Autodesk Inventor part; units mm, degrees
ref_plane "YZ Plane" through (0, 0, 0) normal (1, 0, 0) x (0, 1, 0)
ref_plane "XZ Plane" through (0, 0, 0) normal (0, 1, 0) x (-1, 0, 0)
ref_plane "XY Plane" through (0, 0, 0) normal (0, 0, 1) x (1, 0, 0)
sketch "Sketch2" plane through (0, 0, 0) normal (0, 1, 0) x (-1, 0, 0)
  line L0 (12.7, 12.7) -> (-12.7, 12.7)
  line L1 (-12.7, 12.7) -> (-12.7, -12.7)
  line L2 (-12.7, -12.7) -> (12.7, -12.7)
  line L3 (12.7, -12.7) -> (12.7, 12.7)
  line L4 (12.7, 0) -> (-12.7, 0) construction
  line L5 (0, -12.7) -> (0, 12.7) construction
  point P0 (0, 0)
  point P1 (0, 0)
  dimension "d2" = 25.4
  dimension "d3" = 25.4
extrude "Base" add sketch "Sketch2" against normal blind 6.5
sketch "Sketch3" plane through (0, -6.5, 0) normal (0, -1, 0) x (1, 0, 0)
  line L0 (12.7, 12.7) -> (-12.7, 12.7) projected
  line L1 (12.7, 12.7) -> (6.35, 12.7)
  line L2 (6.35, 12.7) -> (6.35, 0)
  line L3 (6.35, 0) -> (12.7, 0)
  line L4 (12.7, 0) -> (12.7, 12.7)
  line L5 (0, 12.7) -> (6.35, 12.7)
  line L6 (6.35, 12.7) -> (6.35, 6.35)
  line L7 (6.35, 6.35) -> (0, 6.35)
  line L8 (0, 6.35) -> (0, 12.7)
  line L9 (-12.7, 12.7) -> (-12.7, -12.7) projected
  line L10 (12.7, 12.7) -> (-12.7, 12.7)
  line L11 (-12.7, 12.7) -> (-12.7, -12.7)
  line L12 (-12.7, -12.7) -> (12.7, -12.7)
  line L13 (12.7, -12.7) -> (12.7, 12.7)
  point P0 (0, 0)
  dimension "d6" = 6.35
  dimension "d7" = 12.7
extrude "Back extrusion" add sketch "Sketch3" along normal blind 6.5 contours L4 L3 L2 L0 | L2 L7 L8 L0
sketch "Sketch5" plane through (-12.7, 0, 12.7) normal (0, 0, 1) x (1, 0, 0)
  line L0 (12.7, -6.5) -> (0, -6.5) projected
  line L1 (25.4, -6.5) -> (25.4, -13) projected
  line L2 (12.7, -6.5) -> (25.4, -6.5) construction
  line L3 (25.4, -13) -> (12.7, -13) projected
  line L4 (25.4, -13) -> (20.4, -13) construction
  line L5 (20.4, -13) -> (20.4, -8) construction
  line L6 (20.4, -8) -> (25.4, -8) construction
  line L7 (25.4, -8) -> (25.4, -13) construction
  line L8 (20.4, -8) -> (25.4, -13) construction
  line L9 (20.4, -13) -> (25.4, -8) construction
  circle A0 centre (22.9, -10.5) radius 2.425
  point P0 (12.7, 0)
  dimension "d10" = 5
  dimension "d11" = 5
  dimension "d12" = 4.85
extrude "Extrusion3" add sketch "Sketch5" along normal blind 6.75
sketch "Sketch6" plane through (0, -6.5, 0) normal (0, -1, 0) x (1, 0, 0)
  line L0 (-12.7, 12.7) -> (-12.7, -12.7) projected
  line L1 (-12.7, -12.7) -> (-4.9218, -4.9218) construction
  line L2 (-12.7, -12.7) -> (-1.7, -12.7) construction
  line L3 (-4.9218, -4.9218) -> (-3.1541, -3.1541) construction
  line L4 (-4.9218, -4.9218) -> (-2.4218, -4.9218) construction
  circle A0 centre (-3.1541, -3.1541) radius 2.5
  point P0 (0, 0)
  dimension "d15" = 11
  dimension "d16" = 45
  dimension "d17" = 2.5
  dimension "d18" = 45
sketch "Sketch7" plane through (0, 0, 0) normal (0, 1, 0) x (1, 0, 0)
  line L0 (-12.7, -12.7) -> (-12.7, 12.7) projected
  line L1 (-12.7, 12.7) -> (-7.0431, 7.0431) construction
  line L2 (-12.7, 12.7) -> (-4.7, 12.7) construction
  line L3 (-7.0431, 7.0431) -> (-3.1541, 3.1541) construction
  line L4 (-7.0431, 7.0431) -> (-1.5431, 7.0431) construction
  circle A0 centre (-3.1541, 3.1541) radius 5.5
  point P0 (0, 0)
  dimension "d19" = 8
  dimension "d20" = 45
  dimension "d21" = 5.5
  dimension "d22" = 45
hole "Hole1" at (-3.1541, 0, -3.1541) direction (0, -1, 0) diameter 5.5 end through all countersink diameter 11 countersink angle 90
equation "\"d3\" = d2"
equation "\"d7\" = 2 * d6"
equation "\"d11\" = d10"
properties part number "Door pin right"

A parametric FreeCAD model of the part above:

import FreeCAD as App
import Part
import Sketcher
Q = App.Units.Quantity


def add_polygon(sketch, points):
    """Adds a closed chain of lines whose ends are joined by coincident constraints."""
    first, n = sketch.GeometryCount, len(points)
    for a, b in zip(points, points[1:] + points[:1]):
        sketch.addGeometry(Part.LineSegment(App.Vector(*a, 0), App.Vector(*b, 0)), False)
    for i in range(n):
        sketch.addConstraint(Sketcher.Constraint("Coincident", first + i, 2, first + (i + 1) % n, 1))

doc = App.newDocument("Part")
body = doc.addObject("PartDesign::Body", "Body")

# Sketch on XZ plane
sketch1 = body.newObject("Sketcher::SketchObject", "Sketch")
sketch1.AttachmentSupport = (doc.getObject("XZ_Plane"), [""])
sketch1.MapMode = "FlatFace"
add_polygon(sketch1, [(-13, -13), (-13, 13), (13, 13), (13, -13)])  # lines 0-3
sketch1.addConstraint([
    Sketcher.Constraint("Vertical", 0),
    Sketcher.Constraint("Horizontal", 1),
    Sketcher.Constraint("Vertical", 2),
    Sketcher.Constraint("Horizontal", 3),
    Sketcher.Constraint("Symmetric", 0, 2, 2, 2, -1, 1),
    Sketcher.Constraint("Equal", 3, 0),
    Sketcher.Constraint("DistanceX", 1, 1, 1, 2, Q("1 in")),
])
pad1 = body.newObject("PartDesign::Pad", "Pad")
pad1.Profile = sketch1
pad1.Length = Q("0.2559055 in")

# Sketch on XZ plane
sketch2 = body.newObject("Sketcher::SketchObject", "Sketch001")
sketch2.AttachmentSupport = (doc.getObject("XZ_Plane"), [""])
sketch2.MapMode = "FlatFace"
sketch2.AttachmentOffset = App.Placement(App.Vector(0, 0, 0.2559055 * 25.4), App.Rotation())
add_polygon(sketch2, [(13, 0), (13, 13), (0, 13), (0, 6), (6, 6), (6, 0)])  # lines 0-5
sketch2.addConstraint([
    Sketcher.Constraint("Vertical", 0),
    Sketcher.Constraint("Horizontal", 1),
    Sketcher.Constraint("Vertical", 2),
    Sketcher.Constraint("Horizontal", 3),
    Sketcher.Constraint("Vertical", 4),
    Sketcher.Constraint("Horizontal", 5),
    Sketcher.Constraint("PointOnObject", 1, 2, -2),
    Sketcher.Constraint("PointOnObject", 4, 2, -1),
    Sketcher.Constraint("Equal", 3, 5),
    Sketcher.Constraint("Equal", 1, 0),
    Sketcher.Constraint("Equal", 5, 2),
    Sketcher.Constraint("DistanceX", 1, 2, 1, 1, Q("0.5 in")),
])
pad2 = body.newObject("PartDesign::Pad", "Pad001")
pad2.Profile = sketch2
pad2.Length = Q("0.2559055 in")

# Sketch on XY plane
sketch3 = body.newObject("Sketcher::SketchObject", "Sketch002")
sketch3.AttachmentSupport = (doc.getObject("XY_Plane"), [""])
sketch3.MapMode = "FlatFace"
sketch3.AttachmentOffset = App.Placement(App.Vector(0, 0, 0.5 * 25.4), App.Rotation())
sketch3.addGeometry(Part.Circle(App.Vector(10.2, -10.5, 0), App.Vector(0, 0, 1), 2.4), False)
sketch3.addConstraint([
    Sketcher.Constraint("Diameter", 0, 4.85),
    Sketcher.Constraint("DistanceX", -1, 1, 0, 3, 10.2),
    Sketcher.Constraint("DistanceY", 0, 3, -1, 1, 10.5),
])
pad3 = body.newObject("PartDesign::Pad", "Pad002")
pad3.Profile = sketch3
pad3.Length = 6.75

# Sketch on XZ plane
sketch4 = body.newObject("Sketcher::SketchObject", "Sketch003")
sketch4.AttachmentSupport = (doc.getObject("XZ_Plane"), [""])
sketch4.MapMode = "FlatFace"
sketch4.addGeometry(Part.Circle(App.Vector(-3.2, -3.2, 0), App.Vector(0, 0, 1), 2.8), False)
sketch4.addConstraint([
    Sketcher.Constraint("Diameter", 0, 5.5),
    Sketcher.Constraint("DistanceX", 0, 3, -1, 1, 3.154),
    Sketcher.Constraint("DistanceY", 0, 3, -1, 1, 3.154),
])
doc.recompute()
hole = body.newObject("PartDesign::Hole", "Hole")
hole.Profile = sketch4
hole.ThreadType = "None"
hole.Diameter = 5.5
hole.DepthType = "ThroughAll"
hole.HoleCutType = "Countersink"
hole.HoleCutDiameter = 11
hole.HoleCutCountersinkAngle = 90
hole.Reversed = True

doc.recompute()
